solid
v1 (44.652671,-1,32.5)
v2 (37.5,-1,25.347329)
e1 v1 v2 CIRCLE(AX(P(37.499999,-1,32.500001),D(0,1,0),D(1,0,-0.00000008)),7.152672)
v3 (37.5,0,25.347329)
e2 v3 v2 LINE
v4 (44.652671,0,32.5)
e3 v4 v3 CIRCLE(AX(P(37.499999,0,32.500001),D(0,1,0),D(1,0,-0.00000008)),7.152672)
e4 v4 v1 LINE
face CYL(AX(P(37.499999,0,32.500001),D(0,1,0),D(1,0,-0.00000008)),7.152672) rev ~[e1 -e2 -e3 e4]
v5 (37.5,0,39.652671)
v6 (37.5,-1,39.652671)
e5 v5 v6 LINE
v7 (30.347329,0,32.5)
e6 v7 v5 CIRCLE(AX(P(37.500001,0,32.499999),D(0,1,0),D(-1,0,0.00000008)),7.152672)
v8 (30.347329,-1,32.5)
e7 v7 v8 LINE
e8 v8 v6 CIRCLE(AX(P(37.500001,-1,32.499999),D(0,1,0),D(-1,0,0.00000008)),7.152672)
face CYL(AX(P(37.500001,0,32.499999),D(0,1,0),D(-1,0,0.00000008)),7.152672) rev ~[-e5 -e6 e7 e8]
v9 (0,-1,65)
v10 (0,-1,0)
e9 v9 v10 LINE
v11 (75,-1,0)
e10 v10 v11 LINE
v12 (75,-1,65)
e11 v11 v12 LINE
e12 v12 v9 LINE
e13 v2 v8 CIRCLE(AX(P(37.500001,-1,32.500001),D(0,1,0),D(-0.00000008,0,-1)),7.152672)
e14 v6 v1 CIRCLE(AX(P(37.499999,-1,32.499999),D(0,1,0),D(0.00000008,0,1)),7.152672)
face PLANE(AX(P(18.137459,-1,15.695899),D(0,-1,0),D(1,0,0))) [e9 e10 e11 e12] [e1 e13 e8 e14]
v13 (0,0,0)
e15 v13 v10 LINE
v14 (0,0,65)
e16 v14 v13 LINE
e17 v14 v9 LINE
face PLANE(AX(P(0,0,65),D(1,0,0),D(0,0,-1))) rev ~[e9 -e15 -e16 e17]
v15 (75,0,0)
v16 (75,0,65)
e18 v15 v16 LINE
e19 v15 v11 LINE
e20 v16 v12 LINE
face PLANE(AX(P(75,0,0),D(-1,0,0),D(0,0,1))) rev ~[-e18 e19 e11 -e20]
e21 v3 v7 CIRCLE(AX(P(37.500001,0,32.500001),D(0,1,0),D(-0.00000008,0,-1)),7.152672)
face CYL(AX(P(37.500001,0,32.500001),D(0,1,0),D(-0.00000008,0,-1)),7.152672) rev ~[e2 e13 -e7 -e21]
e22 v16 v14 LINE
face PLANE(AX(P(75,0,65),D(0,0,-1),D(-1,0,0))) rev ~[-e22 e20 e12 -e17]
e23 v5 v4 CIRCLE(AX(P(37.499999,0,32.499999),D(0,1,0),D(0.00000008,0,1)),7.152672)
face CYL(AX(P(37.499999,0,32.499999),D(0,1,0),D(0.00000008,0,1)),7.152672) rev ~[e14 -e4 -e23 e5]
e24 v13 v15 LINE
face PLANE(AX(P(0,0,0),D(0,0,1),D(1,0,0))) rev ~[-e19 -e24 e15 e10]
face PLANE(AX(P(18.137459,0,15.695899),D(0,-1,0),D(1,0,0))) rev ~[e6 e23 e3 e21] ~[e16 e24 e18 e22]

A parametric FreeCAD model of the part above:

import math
import FreeCAD as App
import Part
import Sketcher

V = App.Vector
Q = App.Units.Quantity

doc = App.newDocument("Part")
body = doc.addObject("PartDesign::Body", "Body")

sketch1 = body.newObject("Sketcher::SketchObject", "Sketch")
sketch1.AttachmentSupport = (doc.getObject("XZ_Plane"), [""])
sketch1.MapMode = "FlatFace"
sketch1.addGeometry([
    Part.LineSegment(V(0, 0, 0), V(75, 0, 0)),
    Part.LineSegment(V(75, 0, 0), V(75, 65, 0)),
    Part.LineSegment(V(75, 65, 0), V(0, 65, 0)),
    Part.LineSegment(V(0, 65, 0), V(0, 0, 0)),
    Part.ArcOfCircle(Part.Circle(V(37, 33, 0), V(0, 0, 1), 7), math.radians(-90), math.radians(0)),
    Part.ArcOfCircle(Part.Circle(V(38, 33, 0), V(0, 0, 1), 7), math.radians(-180), math.radians(-90)),
    Part.ArcOfCircle(Part.Circle(V(38, 32, 0), V(0, 0, 1), 7), math.radians(90), math.radians(180)),
    Part.ArcOfCircle(Part.Circle(V(37, 32, 0), V(0, 0, 1), 7), math.radians(0), math.radians(90)),
], False)
sketch1.addConstraint([
    Sketcher.Constraint("Coincident", 0, 2, 1, 1),
    Sketcher.Constraint("Coincident", 1, 2, 2, 1),
    Sketcher.Constraint("Coincident", 2, 2, 3, 1),
    Sketcher.Constraint("Coincident", 3, 2, 0, 1),
    Sketcher.Constraint("Tangent", 4, 1, 5, 2),
    Sketcher.Constraint("Tangent", 5, 1, 6, 2),
    Sketcher.Constraint("Tangent", 6, 1, 7, 2),
    Sketcher.Constraint("Tangent", 7, 1, 4, 2),
    Sketcher.Constraint("Horizontal", 0),
    Sketcher.Constraint("Vertical", 1),
    Sketcher.Constraint("Horizontal", 2),
    Sketcher.Constraint("Vertical", 3),
    Sketcher.Constraint("Coincident", 3, 2, -1, 1),
    Sketcher.Constraint("Equal", 4, 5),
    Sketcher.Constraint("Horizontal", 7, 3, 5, 1),
    Sketcher.Constraint("Horizontal", 5, 1, 7, 1),
    Sketcher.Constraint("Vertical", 7, 3, 4, 1),
    Sketcher.Constraint("Vertical", 4, 1, 6, 1),
    Sketcher.Constraint("DistanceX", 0, 1, 0, 2, Q("75 mm")),
    Sketcher.Constraint("DistanceY", 1, 1, 1, 2, Q("65 mm")),
    Sketcher.Constraint("DistanceX", -1, 1, 4, 3, Q("37.499999 mm")),
    Sketcher.Constraint("DistanceY", -1, 1, 4, 3, Q("32.500001 mm")),
    Sketcher.Constraint("Radius", 4, Q("7.152672 mm")),
])
pad1 = body.newObject("PartDesign::Pad", "Pad")
pad1.Profile = sketch1
pad1.Length = 1

doc.recompute()
